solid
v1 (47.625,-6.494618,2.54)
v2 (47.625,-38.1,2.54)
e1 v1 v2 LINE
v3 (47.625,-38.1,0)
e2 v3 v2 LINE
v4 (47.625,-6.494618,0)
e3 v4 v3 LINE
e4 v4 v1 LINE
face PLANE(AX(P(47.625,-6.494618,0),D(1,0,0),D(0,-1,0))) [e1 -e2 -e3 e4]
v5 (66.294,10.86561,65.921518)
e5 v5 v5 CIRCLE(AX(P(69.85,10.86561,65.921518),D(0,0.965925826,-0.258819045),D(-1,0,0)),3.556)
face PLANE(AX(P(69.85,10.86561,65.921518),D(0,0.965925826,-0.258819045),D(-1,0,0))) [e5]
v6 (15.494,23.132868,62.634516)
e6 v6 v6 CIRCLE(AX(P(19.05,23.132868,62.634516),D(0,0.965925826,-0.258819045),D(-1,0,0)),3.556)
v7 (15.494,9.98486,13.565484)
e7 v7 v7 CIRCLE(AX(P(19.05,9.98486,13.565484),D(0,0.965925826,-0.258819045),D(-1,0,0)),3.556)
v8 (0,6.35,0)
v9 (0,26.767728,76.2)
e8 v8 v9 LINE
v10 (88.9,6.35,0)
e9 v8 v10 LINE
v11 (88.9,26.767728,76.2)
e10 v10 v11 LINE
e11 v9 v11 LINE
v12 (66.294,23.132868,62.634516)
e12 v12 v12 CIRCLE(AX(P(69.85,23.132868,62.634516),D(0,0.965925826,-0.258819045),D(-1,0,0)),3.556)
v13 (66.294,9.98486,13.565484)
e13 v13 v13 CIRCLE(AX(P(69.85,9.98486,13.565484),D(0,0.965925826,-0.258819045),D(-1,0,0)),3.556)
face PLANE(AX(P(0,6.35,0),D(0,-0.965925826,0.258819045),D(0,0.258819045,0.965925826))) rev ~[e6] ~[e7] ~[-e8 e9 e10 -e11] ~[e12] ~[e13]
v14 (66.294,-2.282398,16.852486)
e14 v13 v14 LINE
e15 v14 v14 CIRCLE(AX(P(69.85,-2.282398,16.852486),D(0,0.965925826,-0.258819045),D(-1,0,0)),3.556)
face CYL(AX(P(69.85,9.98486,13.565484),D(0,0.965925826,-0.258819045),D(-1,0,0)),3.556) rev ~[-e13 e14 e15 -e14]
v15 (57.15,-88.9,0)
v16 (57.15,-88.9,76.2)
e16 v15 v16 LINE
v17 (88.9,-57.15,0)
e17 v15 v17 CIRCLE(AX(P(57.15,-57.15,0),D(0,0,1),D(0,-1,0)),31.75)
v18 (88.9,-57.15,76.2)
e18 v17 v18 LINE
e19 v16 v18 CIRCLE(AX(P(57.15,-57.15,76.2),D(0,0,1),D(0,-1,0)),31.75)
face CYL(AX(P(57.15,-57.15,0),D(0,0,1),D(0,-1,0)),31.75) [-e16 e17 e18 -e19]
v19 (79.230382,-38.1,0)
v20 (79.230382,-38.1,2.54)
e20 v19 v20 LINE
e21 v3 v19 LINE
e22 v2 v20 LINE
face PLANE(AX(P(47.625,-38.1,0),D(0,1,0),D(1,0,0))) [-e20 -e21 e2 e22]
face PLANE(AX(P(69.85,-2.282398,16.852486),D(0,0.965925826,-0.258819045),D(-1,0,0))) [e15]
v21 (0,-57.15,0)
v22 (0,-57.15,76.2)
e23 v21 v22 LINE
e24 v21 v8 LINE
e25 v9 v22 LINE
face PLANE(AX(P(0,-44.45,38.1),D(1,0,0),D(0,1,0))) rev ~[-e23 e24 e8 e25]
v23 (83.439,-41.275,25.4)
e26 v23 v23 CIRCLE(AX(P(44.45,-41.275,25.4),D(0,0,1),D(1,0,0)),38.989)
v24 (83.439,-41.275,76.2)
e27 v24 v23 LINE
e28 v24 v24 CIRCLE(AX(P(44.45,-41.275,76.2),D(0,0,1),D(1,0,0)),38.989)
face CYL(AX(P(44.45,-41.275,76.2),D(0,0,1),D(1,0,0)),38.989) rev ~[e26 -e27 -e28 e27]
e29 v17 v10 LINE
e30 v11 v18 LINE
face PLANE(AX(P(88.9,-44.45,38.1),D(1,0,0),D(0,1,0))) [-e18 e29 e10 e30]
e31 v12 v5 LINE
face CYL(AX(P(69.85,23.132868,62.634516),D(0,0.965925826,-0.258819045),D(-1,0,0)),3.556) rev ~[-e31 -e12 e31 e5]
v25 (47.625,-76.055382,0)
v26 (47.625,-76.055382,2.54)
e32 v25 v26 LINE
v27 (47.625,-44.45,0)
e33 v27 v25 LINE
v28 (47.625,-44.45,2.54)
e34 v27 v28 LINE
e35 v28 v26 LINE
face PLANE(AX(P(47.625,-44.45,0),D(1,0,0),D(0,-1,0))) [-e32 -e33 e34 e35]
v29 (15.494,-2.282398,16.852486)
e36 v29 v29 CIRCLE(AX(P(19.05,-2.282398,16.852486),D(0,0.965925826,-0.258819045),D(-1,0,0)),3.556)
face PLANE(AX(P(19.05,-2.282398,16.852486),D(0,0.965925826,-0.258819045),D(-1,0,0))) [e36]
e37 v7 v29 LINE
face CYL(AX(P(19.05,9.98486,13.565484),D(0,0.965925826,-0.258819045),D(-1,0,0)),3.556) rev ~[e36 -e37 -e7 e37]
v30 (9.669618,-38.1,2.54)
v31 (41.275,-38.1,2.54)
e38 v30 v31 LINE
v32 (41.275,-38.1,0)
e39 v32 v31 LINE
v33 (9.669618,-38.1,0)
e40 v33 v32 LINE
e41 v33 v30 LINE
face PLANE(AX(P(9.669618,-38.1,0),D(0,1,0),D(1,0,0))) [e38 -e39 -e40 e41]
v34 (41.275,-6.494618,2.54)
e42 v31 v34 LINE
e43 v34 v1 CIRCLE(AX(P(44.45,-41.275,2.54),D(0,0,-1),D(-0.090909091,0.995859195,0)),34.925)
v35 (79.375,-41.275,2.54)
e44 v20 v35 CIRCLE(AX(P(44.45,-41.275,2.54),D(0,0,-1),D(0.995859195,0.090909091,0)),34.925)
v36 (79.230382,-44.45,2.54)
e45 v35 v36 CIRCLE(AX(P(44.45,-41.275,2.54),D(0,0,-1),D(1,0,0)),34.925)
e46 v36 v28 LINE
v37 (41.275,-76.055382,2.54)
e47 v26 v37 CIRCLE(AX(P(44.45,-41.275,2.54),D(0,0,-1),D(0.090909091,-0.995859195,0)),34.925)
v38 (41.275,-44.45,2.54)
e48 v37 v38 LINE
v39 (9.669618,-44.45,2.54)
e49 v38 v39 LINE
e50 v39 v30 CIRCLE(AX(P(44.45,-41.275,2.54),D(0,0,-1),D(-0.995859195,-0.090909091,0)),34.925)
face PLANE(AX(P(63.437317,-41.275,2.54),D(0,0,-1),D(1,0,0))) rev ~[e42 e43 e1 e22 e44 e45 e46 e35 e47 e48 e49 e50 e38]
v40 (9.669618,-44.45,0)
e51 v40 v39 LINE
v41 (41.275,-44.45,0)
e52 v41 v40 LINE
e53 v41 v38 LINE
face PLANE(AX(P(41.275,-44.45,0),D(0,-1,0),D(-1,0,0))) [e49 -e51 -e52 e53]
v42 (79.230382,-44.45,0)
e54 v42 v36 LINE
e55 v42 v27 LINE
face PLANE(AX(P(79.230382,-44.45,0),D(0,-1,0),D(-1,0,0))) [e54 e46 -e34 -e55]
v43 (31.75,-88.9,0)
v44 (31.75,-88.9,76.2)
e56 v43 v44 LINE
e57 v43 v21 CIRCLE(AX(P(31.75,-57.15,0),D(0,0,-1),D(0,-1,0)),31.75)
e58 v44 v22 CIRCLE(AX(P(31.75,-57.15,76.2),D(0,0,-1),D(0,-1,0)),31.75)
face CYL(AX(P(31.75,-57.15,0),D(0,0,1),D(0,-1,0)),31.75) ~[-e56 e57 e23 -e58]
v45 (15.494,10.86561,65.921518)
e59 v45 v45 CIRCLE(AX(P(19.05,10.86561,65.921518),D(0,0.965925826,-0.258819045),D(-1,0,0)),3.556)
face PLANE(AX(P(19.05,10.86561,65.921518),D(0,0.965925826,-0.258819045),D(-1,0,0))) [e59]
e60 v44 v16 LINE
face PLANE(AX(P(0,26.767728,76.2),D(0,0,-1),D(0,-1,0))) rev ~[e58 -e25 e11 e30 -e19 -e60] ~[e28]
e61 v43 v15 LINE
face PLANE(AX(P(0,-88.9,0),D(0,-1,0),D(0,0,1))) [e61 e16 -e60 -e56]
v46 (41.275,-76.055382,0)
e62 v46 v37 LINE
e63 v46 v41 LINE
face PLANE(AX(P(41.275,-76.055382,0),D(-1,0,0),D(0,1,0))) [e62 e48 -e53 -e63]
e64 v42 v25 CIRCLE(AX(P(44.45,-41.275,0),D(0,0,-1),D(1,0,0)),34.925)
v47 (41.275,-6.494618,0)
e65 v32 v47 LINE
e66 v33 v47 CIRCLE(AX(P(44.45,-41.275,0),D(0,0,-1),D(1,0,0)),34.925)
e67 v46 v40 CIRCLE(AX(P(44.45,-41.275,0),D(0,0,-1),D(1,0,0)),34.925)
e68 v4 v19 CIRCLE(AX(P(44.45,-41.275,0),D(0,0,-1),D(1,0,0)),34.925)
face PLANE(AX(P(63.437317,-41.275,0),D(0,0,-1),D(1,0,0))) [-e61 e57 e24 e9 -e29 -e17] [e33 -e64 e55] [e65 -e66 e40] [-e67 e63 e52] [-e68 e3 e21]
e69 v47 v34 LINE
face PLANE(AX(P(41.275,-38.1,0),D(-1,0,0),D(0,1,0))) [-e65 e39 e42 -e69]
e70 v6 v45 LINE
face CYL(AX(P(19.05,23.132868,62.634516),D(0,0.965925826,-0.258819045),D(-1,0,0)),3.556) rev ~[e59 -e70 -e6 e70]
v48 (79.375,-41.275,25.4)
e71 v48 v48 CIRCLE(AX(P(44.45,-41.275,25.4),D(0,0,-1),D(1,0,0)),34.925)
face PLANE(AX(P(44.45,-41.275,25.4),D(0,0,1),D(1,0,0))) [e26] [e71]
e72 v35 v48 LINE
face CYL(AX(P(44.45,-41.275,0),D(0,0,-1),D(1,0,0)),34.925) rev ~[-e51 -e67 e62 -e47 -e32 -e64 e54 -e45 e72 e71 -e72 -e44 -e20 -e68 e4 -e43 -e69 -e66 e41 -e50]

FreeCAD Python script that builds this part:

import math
import FreeCAD as App
import Part
import Sketcher
Q = App.Units.Quantity


def edges_at(feature, points):
    """Names of the edges that pass closest to the given points."""
    edges = feature.Shape.Edges
    near = lambda p: min(range(len(edges)), key=lambda i: edges[i].distToShape(Part.Vertex(*p))[0])
    return sorted({f"Edge{near(p) + 1}" for p in points})

doc = App.newDocument("Part")
params = doc.addObject("Spreadsheet::Sheet", "Params")
for row, (alias, value) in enumerate([
    ("sketch1_height", "3 in"),
    ("sketch1_width", "3.75 in"),
    ("pad1_length", "3.5 in"),
    ("sketch2_diameter", "2.75 in"),
    ("pocket1_length", "1 in"),
    ("sketch3_diameter", "3.07 in"),
    ("pocket2_length", "2 in"),
    ("sketch4_radius", "1.375 in"),
    ("pad2_length", "0.1 in"),
    ("sketch5_diameter", "0.28 in"),
    ("pocket3_length", "0.5 in"),
    ("fillet_radius", "1.25 in"),
], start=1):
    params.set(f"A{row}", alias)
    params.set(f"B{row}", "=" + value)
    params.setAlias(f"B{row}", alias)

body = doc.addObject("PartDesign::Body", "Body")

sketch1 = body.newObject("Sketcher::SketchObject", "Sketch")
sketch1.AttachmentSupport = (doc.getObject("YZ_Plane"), [""])
sketch1.MapMode = "FlatFace"
sketch1.addGeometry([
    Part.LineSegment(App.Vector(-89, 76, 0), App.Vector(-89, 0, 0)),
    Part.LineSegment(App.Vector(-89, 0, 0), App.Vector(6, 0, 0)),
    Part.LineSegment(App.Vector(6, 0, 0), App.Vector(27, 76, 0)),
    Part.LineSegment(App.Vector(27, 76, 0), App.Vector(-89, 76, 0)),
], False)
sketch1.addConstraint([
    Sketcher.Constraint("Coincident", 0, 2, 1, 1),
    Sketcher.Constraint("Coincident", 1, 2, 2, 1),
    Sketcher.Constraint("Coincident", 2, 2, 3, 1),
    Sketcher.Constraint("Coincident", 3, 2, 0, 1),
    Sketcher.Constraint("Vertical", 0),
    Sketcher.Constraint("Horizontal", 1),
    Sketcher.Constraint("Horizontal", 3),
    Sketcher.Constraint("PointOnObject", 0, 2, -1),
    Sketcher.Constraint("DistanceY", 0, 2, 0, 1, Q("3 in")),
    Sketcher.Constraint("Angle", 2, Q("75 deg")),
    Sketcher.Constraint("DistanceX", 1, 1, 1, 2, Q("3.75 in")),
    Sketcher.Constraint("DistanceX", 0, 2, -1, 1, Q("3.5 in")),
])
sketch1.setExpression("Constraints[8]", "Params.sketch1_height")
sketch1.setExpression("Constraints[10]", "Params.sketch1_width")
pad1 = body.newObject("PartDesign::Pad", "Pad")
pad1.Profile = sketch1
pad1.setExpression("Length", "Params.pad1_length")

sketch2 = body.newObject("Sketcher::SketchObject", "Sketch001")
sketch2.AttachmentSupport = (doc.getObject("XY_Plane"), [""])
sketch2.MapMode = "FlatFace"
sketch2.addGeometry(Part.Circle(App.Vector(44, -41, 0), App.Vector(0, 0, 1), 35), False)
sketch2.addConstraint([
    Sketcher.Constraint("Diameter", 0, Q("2.75 in")),
    Sketcher.Constraint("DistanceX", -1, 1, 0, 3, Q("1.75 in")),
    Sketcher.Constraint("DistanceY", 0, 3, -1, 1, Q("1.625 in")),
])
sketch2.setExpression("Constraints[0]", "Params.sketch2_diameter")
pocket1 = body.newObject("PartDesign::Pocket", "Pocket")
pocket1.Profile = sketch2
pocket1.setExpression("Length", "Params.pocket1_length")
pocket1.Reversed = True

sketch3 = body.newObject("Sketcher::SketchObject", "Sketch002")
sketch3.AttachmentSupport = (doc.getObject("XY_Plane"), [""])
sketch3.MapMode = "FlatFace"
sketch3.AttachmentOffset = App.Placement(App.Vector(0, 0, 3 * 25.4), App.Rotation())
sketch3.addGeometry(Part.Circle(App.Vector(44, -41, 0), App.Vector(0, 0, 1), 39), False)
sketch3.addConstraint([
    Sketcher.Constraint("Diameter", 0, Q("3.07 in")),
    Sketcher.Constraint("DistanceX", -1, 1, 0, 3, Q("1.75 in")),
    Sketcher.Constraint("DistanceY", 0, 3, -1, 1, Q("1.625 in")),
])
sketch3.setExpression("Constraints[0]", "Params.sketch3_diameter")
pocket2 = body.newObject("PartDesign::Pocket", "Pocket001")
pocket2.Profile = sketch3
pocket2.setExpression("Length", "Params.pocket2_length")

sketch4 = body.newObject("Sketcher::SketchObject", "Sketch003")
sketch4.AttachmentSupport = (doc.getObject("XY_Plane"), [""])
sketch4.MapMode = "FlatFace"
sketch4.addGeometry([
    Part.LineSegment(App.Vector(79.2, -44.5, 0), App.Vector(47.6, -44.5, 0)),
    Part.LineSegment(App.Vector(47.6, -44.5, 0), App.Vector(47.6, -76.1, 0)),
    Part.ArcOfCircle(Part.Circle(App.Vector(44.5, -41.3, 0), App.Vector(0, 0, 1), 34.9), math.radians(-95.22), math.radians(-84.78)),
    Part.LineSegment(App.Vector(41.3, -76.1, 0), App.Vector(41.3, -44.5, 0)),
    Part.LineSegment(App.Vector(41.3, -44.5, 0), App.Vector(9.7, -44.5, 0)),
    Part.ArcOfCircle(Part.Circle(App.Vector(44.5, -41.3, 0), App.Vector(0, 0, 1), 34.9), math.radians(174.78), math.radians(185.22)),
    Part.LineSegment(App.Vector(9.7, -38.1, 0), App.Vector(41.3, -38.1, 0)),
    Part.LineSegment(App.Vector(41.3, -38.1, 0), App.Vector(41.3, -6.5, 0)),
    Part.ArcOfCircle(Part.Circle(App.Vector(44.5, -41.3, 0), App.Vector(0, 0, 1), 34.9), math.radians(84.78), math.radians(95.22)),
    Part.LineSegment(App.Vector(47.6, -6.5, 0), App.Vector(47.6, -38.1, 0)),
    Part.LineSegment(App.Vector(47.6, -38.1, 0), App.Vector(79.2, -38.1, 0)),
    Part.ArcOfCircle(Part.Circle(App.Vector(44.5, -41.3, 0), App.Vector(0, 0, 1), 34.9), math.radians(0), math.radians(5.22)),
    Part.ArcOfCircle(Part.Circle(App.Vector(44.5, -41.3, 0), App.Vector(0, 0, 1), 34.9), math.radians(-5.22), math.radians(0)),
], False)
sketch4.addConstraint([
    Sketcher.Constraint("Coincident", 0, 2, 1, 1),
    Sketcher.Constraint("Coincident", 1, 2, 2, 2),
    Sketcher.Constraint("Coincident", 2, 1, 3, 1),
    Sketcher.Constraint("Coincident", 3, 2, 4, 1),
    Sketcher.Constraint("Coincident", 4, 2, 5, 2),
    Sketcher.Constraint("Coincident", 5, 1, 6, 1),
    Sketcher.Constraint("Coincident", 6, 2, 7, 1),
    Sketcher.Constraint("Coincident", 7, 2, 8, 2),
    Sketcher.Constraint("Coincident", 8, 1, 9, 1),
    Sketcher.Constraint("Coincident", 9, 2, 10, 1),
    Sketcher.Constraint("Coincident", 10, 2, 11, 2),
    Sketcher.Constraint("Tangent", 11, 1, 12, 2),
    Sketcher.Constraint("Coincident", 12, 1, 0, 1),
    Sketcher.Constraint("Horizontal", 0),
    Sketcher.Constraint("Vertical", 1),
    Sketcher.Constraint("Vertical", 3),
    Sketcher.Constraint("Horizontal", 4),
    Sketcher.Constraint("Horizontal", 6),
    Sketcher.Constraint("Vertical", 7),
    Sketcher.Constraint("Vertical", 9),
    Sketcher.Constraint("Horizontal", 10),
    Sketcher.Constraint("Coincident", 5, 3, 2, 3),
    Sketcher.Constraint("Coincident", 8, 3, 2, 3),
    Sketcher.Constraint("Coincident", 11, 3, 2, 3),
    Sketcher.Constraint("Equal", 2, 5),
    Sketcher.Constraint("Equal", 5, 8),
    Sketcher.Constraint("Equal", 8, 11),
    Sketcher.Constraint("Equal", 11, 12),
    Sketcher.Constraint("Horizontal", 1, 2, 2, 1),
    Sketcher.Constraint("Horizontal", 0, 2, 3, 2),
    Sketcher.Constraint("Horizontal", 7, 2, 8, 1),
    Sketcher.Constraint("Horizontal", 6, 2, 9, 2),
    Sketcher.Constraint("Horizontal", 12, 3, 11, 1),
    Sketcher.Constraint("Vertical", 4, 2, 5, 1),
    Sketcher.Constraint("Vertical", 3, 2, 6, 2),
    Sketcher.Constraint("Equal", 10, 1),
    Sketcher.Constraint("Radius", 2, Q("1.375 in")),
    Sketcher.Constraint("DistanceY", 5, 1, -1, 1, Q("1.5 in")),
    Sketcher.Constraint("DistanceX", -1, 1, 2, 3, Q("1.75 in")),
    Sketcher.Constraint("DistanceY", 0, 2, -1, 1, Q("1.75 in")),
])
sketch4.setExpression("Constraints[36]", "Params.sketch4_radius")
pad2 = body.newObject("PartDesign::Pad", "Pad001")
pad2.Profile = sketch4
pad2.setExpression("Length", "Params.pad2_length")

sketch5 = body.newObject("Sketcher::SketchObject", "Sketch004")
sketch5.Placement = App.Placement(App.Vector(0, 5.924631, -1.5875), App.Rotation(App.Vector(-1, 0, 0), App.Vector(0, 0.258819045, 0.965925826), App.Vector(0, 0.965925826, -0.258819045), "ZXY"))
sketch5.addGeometry([
    Part.Circle(App.Vector(-69.8, 66.5, 0), App.Vector(0, 0, 1), 3.6),
    Part.Circle(App.Vector(-19.1, 66.5, 0), App.Vector(0, 0, 1), 3.6),
    Part.Circle(App.Vector(-69.8, 15.7, 0), App.Vector(0, 0, 1), 3.6),
    Part.Circle(App.Vector(-19.1, 15.7, 0), App.Vector(0, 0, 1), 3.6),
], False)
sketch5.addConstraint([
    Sketcher.Constraint("Equal", 0, 1),
    Sketcher.Constraint("Equal", 1, 2),
    Sketcher.Constraint("Equal", 2, 3),
    Sketcher.Constraint("Horizontal", 0, 3, 1, 3),
    Sketcher.Constraint("Horizontal", 2, 3, 3, 3),
    Sketcher.Constraint("Vertical", 0, 3, 2, 3),
    Sketcher.Constraint("Vertical", 1, 3, 3, 3),
    Sketcher.Constraint("Diameter", 0, Q("0.28 in")),
    Sketcher.Constraint("DistanceX", 0, 3, 1, 3, Q("2 in")),
    Sketcher.Constraint("DistanceY", 2, 3, 0, 3, Q("2 in")),
    Sketcher.Constraint("DistanceX", 0, 3, -1, 1, Q("2.75 in")),
    Sketcher.Constraint("DistanceY", -1, 1, 0, 3, 66.487523),
])
sketch5.setExpression("Constraints[7]", "Params.sketch5_diameter")
pocket3 = body.newObject("PartDesign::Pocket", "Pocket002")
pocket3.Profile = sketch5
pocket3.setExpression("Length", "Params.pocket3_length")
doc.recompute()

fillet = body.newObject("PartDesign::Fillet", "Fillet")
fillet.Base = (pocket3, edges_at(pocket3, [(0, -88.9, 38.1), (88.9, -88.9, 38.1)]))
fillet.setExpression("Radius", "Params.fillet_radius")

doc.recompute()
